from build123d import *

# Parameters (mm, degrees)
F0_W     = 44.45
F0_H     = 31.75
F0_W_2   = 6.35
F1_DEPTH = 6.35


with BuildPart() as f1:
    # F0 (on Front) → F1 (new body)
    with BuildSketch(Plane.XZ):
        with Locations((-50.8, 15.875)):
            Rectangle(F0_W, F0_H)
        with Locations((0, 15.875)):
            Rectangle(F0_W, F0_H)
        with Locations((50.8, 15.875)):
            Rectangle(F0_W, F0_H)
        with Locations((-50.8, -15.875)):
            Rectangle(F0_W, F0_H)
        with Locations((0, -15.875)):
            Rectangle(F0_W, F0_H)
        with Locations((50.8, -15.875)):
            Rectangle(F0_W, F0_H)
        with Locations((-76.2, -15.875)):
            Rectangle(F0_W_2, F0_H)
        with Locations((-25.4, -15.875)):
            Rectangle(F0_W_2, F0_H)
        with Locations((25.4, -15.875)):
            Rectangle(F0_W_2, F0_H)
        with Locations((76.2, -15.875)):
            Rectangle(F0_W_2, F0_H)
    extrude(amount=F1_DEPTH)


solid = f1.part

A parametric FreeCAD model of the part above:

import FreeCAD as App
import Part
import Sketcher

V = App.Vector
Q = App.Units.Quantity


def add_polygon(sketch, points):
    """Adds a closed chain of lines whose ends are joined by coincident constraints."""
    first, n = sketch.GeometryCount, len(points)
    for a, b in zip(points, points[1:] + points[:1]):
        sketch.addGeometry(Part.LineSegment(App.Vector(*a, 0), App.Vector(*b, 0)), False)
    for i in range(n):
        sketch.addConstraint(Sketcher.Constraint("Coincident", first + i, 2, first + (i + 1) % n, 1))

doc = App.newDocument("Part")
params = doc.addObject("Spreadsheet::Sheet", "Params")
for row, (alias, value) in enumerate([
    ("sketch1_width", "0.25 in"),
    ("sketch1_height", "1.25 in"),
    ("pad1_length", "0.25 in"),
], start=1):
    params.set(f"A{row}", alias)
    params.set(f"B{row}", "=" + value)
    params.setAlias(f"B{row}", alias)

body = doc.addObject("PartDesign::Body", "Body")

# Sketch on XZ plane
sketch1 = body.newObject("Sketcher::SketchObject", "Sketch")
sketch1.AttachmentSupport = (doc.getObject("XZ_Plane"), [""])
sketch1.MapMode = "FlatFace"
add_polygon(sketch1, [(-73, 32), (-73, 0), (-79, 0), (-79, -32), (79, -32), (79, 0), (73, 0), (73, 32), (29, 32), (29, 0), (22, 0), (22, 32), (-22, 32), (-22, 0), (-29, 0), (-29, 32)])  # lines 0-15
sketch1.addConstraint([
    Sketcher.Constraint("Vertical", 0),
    Sketcher.Constraint("Horizontal", 1),
    Sketcher.Constraint("Vertical", 2),
    Sketcher.Constraint("Horizontal", 3),
    Sketcher.Constraint("Vertical", 4),
    Sketcher.Constraint("Horizontal", 5),
    Sketcher.Constraint("Vertical", 6),
    Sketcher.Constraint("Horizontal", 7),
    Sketcher.Constraint("Vertical", 8),
    Sketcher.Constraint("Horizontal", 9),
    Sketcher.Constraint("Vertical", 10),
    Sketcher.Constraint("Horizontal", 11),
    Sketcher.Constraint("Vertical", 12),
    Sketcher.Constraint("Horizontal", 13),
    Sketcher.Constraint("Vertical", 14),
    Sketcher.Constraint("Horizontal", 15),
    Sketcher.Constraint("Symmetric", 1, 2, 4, 2, -1, 1),
    Sketcher.Constraint("Symmetric", 9, 2, 12, 2, -1, 1),
    Sketcher.Constraint("Symmetric", 0, 2, 5, 2, -2),
    Sketcher.Constraint("Symmetric", 8, 2, 13, 2, -2),
    Sketcher.Constraint("Horizontal", 7, 2, 10, 2),
    Sketcher.Constraint("Horizontal", 11, 2, 14, 2),
    Sketcher.Constraint("Equal", 5, 9),
    Sketcher.Constraint("Equal", 7, 11),
    Sketcher.Constraint("Equal", 0, 2),
    Sketcher.Constraint("DistanceX", 0, 2, 3, 2, Q("6 in")),
    Sketcher.Constraint("DistanceX", 1, 2, 1, 1, Q("0.25 in")),
    Sketcher.Constraint("DistanceY", 0, 2, 0, 1, Q("1.25 in")),
])
sketch1.setExpression("Constraints[42]", "Params.sketch1_width")
sketch1.setExpression("Constraints[43]", "Params.sketch1_height")
pad1 = body.newObject("PartDesign::Pad", "Pad")
pad1.Profile = sketch1
pad1.setExpression("Length", "Params.pad1_length")

doc.recompute()
